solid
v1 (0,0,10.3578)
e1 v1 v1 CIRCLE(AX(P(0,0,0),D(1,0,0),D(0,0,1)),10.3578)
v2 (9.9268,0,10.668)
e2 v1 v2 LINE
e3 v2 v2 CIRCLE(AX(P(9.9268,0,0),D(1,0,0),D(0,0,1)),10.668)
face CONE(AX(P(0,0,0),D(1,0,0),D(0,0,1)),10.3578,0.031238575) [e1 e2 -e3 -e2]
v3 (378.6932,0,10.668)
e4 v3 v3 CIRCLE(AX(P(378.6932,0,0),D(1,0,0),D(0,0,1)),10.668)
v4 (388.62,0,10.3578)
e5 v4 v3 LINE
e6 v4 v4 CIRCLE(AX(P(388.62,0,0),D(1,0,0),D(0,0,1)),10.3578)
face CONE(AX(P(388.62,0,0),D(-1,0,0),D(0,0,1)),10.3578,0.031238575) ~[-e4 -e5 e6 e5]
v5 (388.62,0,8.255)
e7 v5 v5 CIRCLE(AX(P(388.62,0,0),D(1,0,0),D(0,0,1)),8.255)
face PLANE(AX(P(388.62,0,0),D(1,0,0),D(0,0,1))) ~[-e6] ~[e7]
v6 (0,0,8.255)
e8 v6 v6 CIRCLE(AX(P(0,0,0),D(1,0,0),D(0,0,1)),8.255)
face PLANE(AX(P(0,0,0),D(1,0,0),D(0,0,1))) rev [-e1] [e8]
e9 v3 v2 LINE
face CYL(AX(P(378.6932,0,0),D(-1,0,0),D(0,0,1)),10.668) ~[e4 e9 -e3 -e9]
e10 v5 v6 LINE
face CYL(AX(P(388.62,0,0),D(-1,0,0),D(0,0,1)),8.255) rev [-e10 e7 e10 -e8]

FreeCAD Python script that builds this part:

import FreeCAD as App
import Part
import Sketcher

V = App.Vector
Q = App.Units.Quantity


def add_polygon(sketch, points):
    """Adds a closed chain of lines whose ends are joined by coincident constraints."""
    first, n = sketch.GeometryCount, len(points)
    for a, b in zip(points, points[1:] + points[:1]):
        sketch.addGeometry(Part.LineSegment(App.Vector(*a, 0), App.Vector(*b, 0)), False)
    for i in range(n):
        sketch.addConstraint(Sketcher.Constraint("Coincident", first + i, 2, first + (i + 1) % n, 1))

doc = App.newDocument("Part")
params = doc.addObject("Spreadsheet::Sheet", "Params")
for row, (alias, value) in enumerate([
    ("sketch1_width", "15.3 in"),
    ("sketch1_length", "0.391 in"),
    ("revolution_angle", "360 deg"),
], start=1):
    params.set(f"A{row}", alias)
    params.set(f"B{row}", "=" + value)
    params.setAlias(f"B{row}", alias)

body = doc.addObject("PartDesign::Body", "Body")

sketch1 = body.newObject("Sketcher::SketchObject", "Sketch")
sketch1.AttachmentSupport = (doc.getObject("XZ_Plane"), [""])
sketch1.MapMode = "FlatFace"
add_polygon(sketch1, [(388.6, 10.4), (388.6, 8.3), (0, 8.3), (0, 10.4), (9.9, 10.7), (378.7, 10.7)])
sketch1.addConstraint(Sketcher.Constraint("Vertical", 0))
sketch1.addConstraint(Sketcher.Constraint("Horizontal", 1))
sketch1.addConstraint(Sketcher.Constraint("Vertical", 2))
sketch1.addConstraint(Sketcher.Constraint("Horizontal", 4))
sketch1.addConstraint(Sketcher.Constraint("PointOnObject", 1, 2, -2))
sketch1.addConstraint(Sketcher.Constraint("Horizontal", 2, 2, 5, 2))
sketch1.addConstraint(Sketcher.Constraint("Equal", 3, 5))
sketch1.addConstraint(Sketcher.Constraint("DistanceX", 1, 2, 1, 1, Q("15.3 in")))
sketch1.addConstraint(Sketcher.Constraint("Angle", 3, Q("1.7898 deg")))
sketch1.addConstraint(Sketcher.Constraint("DistanceY", -1, 1, 3, 2, Q("0.42 in")))
sketch1.addConstraint(Sketcher.Constraint("Distance", 3, Q("0.391 in")))
sketch1.addConstraint(Sketcher.Constraint("DistanceY", -1, 1, 0, 2, Q("0.325 in")))
sketch1.setExpression("Constraints[13]", "Params.sketch1_width")
sketch1.setExpression("Constraints[16]", "Params.sketch1_length")
revolution = body.newObject("PartDesign::Revolution", "Revolution")
revolution.Profile = sketch1
revolution.ReferenceAxis = (sketch1, ["H_Axis"])
revolution.setExpression("Angle", "Params.revolution_angle")

doc.recompute()
